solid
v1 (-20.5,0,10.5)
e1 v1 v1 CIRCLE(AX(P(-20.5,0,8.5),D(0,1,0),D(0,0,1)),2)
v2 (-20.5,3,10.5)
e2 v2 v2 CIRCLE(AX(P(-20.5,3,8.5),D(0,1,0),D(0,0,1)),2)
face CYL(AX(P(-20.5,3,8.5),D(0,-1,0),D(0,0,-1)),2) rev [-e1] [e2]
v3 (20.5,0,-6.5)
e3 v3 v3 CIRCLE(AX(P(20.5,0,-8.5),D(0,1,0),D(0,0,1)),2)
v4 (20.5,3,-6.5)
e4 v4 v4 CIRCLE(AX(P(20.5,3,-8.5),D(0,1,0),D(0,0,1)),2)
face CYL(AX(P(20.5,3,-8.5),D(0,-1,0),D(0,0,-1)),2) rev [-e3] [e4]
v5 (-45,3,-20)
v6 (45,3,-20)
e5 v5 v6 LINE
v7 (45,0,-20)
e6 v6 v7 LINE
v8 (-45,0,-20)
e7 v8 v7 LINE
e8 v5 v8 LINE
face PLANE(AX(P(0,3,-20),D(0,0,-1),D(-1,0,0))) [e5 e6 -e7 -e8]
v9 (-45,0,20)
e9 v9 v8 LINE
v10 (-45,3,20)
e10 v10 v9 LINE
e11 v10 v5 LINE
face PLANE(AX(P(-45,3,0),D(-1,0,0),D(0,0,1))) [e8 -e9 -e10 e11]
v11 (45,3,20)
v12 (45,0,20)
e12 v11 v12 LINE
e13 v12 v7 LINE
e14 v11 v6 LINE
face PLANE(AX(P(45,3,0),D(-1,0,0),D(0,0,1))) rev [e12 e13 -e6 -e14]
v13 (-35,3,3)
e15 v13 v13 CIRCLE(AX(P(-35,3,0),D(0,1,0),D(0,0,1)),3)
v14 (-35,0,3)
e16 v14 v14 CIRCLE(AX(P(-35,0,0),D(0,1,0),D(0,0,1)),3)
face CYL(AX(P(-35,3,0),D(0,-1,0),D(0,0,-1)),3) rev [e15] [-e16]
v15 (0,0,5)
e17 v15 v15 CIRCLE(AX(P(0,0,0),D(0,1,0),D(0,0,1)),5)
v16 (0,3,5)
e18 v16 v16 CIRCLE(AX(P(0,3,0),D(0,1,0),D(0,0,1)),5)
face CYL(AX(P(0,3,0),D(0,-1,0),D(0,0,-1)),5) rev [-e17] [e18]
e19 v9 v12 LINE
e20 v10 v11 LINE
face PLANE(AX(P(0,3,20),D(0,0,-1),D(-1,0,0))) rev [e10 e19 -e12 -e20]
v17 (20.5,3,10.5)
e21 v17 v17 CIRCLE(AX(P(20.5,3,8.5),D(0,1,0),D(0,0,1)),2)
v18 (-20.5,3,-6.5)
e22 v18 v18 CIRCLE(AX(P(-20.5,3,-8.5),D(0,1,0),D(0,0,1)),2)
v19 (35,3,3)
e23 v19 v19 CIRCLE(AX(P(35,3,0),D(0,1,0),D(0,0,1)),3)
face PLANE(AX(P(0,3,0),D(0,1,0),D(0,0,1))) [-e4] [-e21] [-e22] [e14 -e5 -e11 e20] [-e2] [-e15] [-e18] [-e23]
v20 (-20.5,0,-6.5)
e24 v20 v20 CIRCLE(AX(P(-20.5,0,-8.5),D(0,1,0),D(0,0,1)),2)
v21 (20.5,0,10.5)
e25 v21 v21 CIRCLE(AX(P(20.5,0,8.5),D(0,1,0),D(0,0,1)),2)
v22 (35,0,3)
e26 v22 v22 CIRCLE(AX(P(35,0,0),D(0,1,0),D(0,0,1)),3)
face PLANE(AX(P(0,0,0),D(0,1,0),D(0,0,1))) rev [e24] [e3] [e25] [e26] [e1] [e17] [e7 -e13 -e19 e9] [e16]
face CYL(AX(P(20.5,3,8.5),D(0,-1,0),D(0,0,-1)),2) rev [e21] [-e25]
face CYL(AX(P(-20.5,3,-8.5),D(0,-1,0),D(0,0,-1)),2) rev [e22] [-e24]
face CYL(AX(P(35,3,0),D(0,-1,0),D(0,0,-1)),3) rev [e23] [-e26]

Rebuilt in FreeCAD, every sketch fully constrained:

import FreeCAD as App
import Part
import Sketcher
from FreeCAD import Vector


def add_polygon(sketch, points):
    """Adds a closed chain of lines whose ends are joined by coincident constraints."""
    first, n = sketch.GeometryCount, len(points)
    for a, b in zip(points, points[1:] + points[:1]):
        sketch.addGeometry(Part.LineSegment(App.Vector(*a, 0), App.Vector(*b, 0)), False)
    for i in range(n):
        sketch.addConstraint(Sketcher.Constraint("Coincident", first + i, 2, first + (i + 1) % n, 1))

doc = App.newDocument("Part")
body = doc.addObject("PartDesign::Body", "Body")

# Sketch on XZ plane
sketch1 = body.newObject("Sketcher::SketchObject", "Sketch")
sketch1.AttachmentSupport = (doc.getObject("XZ_Plane"), [""])
sketch1.MapMode = "FlatFace"
add_polygon(sketch1, [(-45, -20), (-45, 20), (45, 20), (45, -20)])  # lines 0-3
sketch1.addGeometry(Part.Circle(Vector(-20.5, 8.5, 0), Vector(0, 0, 1), 2), False)  # 4
sketch1.addGeometry(Part.Circle(Vector(20.5, 8.5, 0), Vector(0, 0, 1), 2), False)  # 5
sketch1.addGeometry(Part.Circle(Vector(-35, 0, 0), Vector(0, 0, 1), 3), False)  # 6
sketch1.addGeometry(Part.Circle(Vector(-20.5, -8.5, 0), Vector(0, 0, 1), 2), False)  # 7
sketch1.addGeometry(Part.Circle(Vector(0, 0, 0), Vector(0, 0, 1), 5), False)  # 8
sketch1.addGeometry(Part.Circle(Vector(35, 0, 0), Vector(0, 0, 1), 3), False)  # 9
sketch1.addGeometry(Part.Circle(Vector(20.5, -8.5, 0), Vector(0, 0, 1), 2), False)  # 10
sketch1.addConstraint([
    Sketcher.Constraint("Vertical", 0),
    Sketcher.Constraint("Horizontal", 1),
    Sketcher.Constraint("Vertical", 2),
    Sketcher.Constraint("Horizontal", 3),
    Sketcher.Constraint("Coincident", 8, 3, -1, 1),
    Sketcher.Constraint("Equal", 4, 5),
    Sketcher.Constraint("Equal", 5, 7),
    Sketcher.Constraint("Equal", 6, 9),
    Sketcher.Constraint("Equal", 7, 10),
    Sketcher.Constraint("Symmetric", 5, 3, 7, 3, -1, 1),
    Sketcher.Constraint("Symmetric", 6, 3, 9, 3, -1, 1),
    Sketcher.Constraint("Symmetric", 4, 3, 10, 3, -1, 1),
    Sketcher.Constraint("Symmetric", 0, 2, 2, 2, -1, 1),
    Sketcher.Constraint("Symmetric", 4, 3, 5, 3, -2),
    Sketcher.Constraint("PointOnObject", 6, 3, -1),
    Sketcher.Constraint("Diameter", 4, 4.0),
    Sketcher.Constraint("Diameter", 6, 6.0),
    Sketcher.Constraint("Diameter", 8, 10.0),
    Sketcher.Constraint("DistanceX", 1, 1, 1, 2, 90.0),
    Sketcher.Constraint("DistanceY", 0, 1, 0, 2, 40.0),
    Sketcher.Constraint("DistanceX", 6, 3, -1, 1, 35.0),
    Sketcher.Constraint("DistanceX", 4, 3, 5, 3, 41.0),
    Sketcher.Constraint("DistanceY", 7, 3, 4, 3, 17.0),
])
pad1 = body.newObject("PartDesign::Pad", "Pad")
pad1.Profile = sketch1
pad1.Length = 3
pad1.Reversed = True

doc.recompute()
